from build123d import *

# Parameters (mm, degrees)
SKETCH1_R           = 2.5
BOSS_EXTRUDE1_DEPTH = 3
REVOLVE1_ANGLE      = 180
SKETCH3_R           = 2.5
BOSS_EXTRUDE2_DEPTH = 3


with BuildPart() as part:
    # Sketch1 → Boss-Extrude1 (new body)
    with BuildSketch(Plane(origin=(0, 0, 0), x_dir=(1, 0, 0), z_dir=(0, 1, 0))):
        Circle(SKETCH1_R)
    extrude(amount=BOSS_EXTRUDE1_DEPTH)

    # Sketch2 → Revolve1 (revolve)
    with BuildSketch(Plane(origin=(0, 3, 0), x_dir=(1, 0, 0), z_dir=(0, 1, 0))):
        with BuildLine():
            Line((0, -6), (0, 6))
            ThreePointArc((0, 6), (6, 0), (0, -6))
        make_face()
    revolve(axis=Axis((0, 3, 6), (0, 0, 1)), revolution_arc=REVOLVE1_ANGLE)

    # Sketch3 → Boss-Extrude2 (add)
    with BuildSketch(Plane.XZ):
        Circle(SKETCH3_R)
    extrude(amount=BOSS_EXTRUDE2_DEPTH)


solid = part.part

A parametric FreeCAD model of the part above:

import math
import FreeCAD as App
import Part
import Sketcher

V = App.Vector
Q = App.Units.Quantity

doc = App.newDocument("Part")
body = doc.addObject("PartDesign::Body", "Body")

sketch1 = body.newObject("Sketcher::SketchObject", "Sketch")
sketch1.AttachmentSupport = (doc.getObject("XZ_Plane"), [""])
sketch1.MapMode = "FlatFace"
sketch1.addGeometry(Part.Circle(V(0, 0, 0), V(0, 0, 1), 2.5), False)
sketch1.addConstraint([
    Sketcher.Constraint("Coincident", 0, 3, -1, 1),
    Sketcher.Constraint("Diameter", 0, Q("5 mm")),
])
pad1 = body.newObject("PartDesign::Pad", "Pad")
pad1.Profile = sketch1
pad1.Length = 3
pad1.Reversed = True

sketch2 = body.newObject("Sketcher::SketchObject", "Sketch001")
sketch2.AttachmentSupport = (doc.getObject("XZ_Plane"), [""])
sketch2.MapMode = "FlatFace"
sketch2.AttachmentOffset = App.Placement(V(0, 0, -3), App.Rotation())
sketch2.addGeometry([
    Part.LineSegment(V(0, -6, 0), V(0, 6, 0)),
    Part.ArcOfCircle(Part.Circle(V(0, 0, 0), V(0, 0, 1), 6), math.radians(-90), math.radians(90)),
], False)
sketch2.addConstraint([
    Sketcher.Constraint("Coincident", 0, 1, 1, 1),
    Sketcher.Constraint("Coincident", 1, 2, 0, 2),
    Sketcher.Constraint("Vertical", 0),
    Sketcher.Constraint("Coincident", 1, 3, -1, 1),
    Sketcher.Constraint("PointOnObject", 0, 1, -2),
    Sketcher.Constraint("Radius", 1, Q("6 mm")),
])
revolution = body.newObject("PartDesign::Revolution", "Revolution")
revolution.Profile = sketch2
revolution.ReferenceAxis = (sketch2, ["V_Axis"])
revolution.Angle = 180

sketch3 = body.newObject("Sketcher::SketchObject", "Sketch002")
sketch3.AttachmentSupport = (doc.getObject("XZ_Plane"), [""])
sketch3.MapMode = "FlatFace"
sketch3.addGeometry(Part.Circle(V(0, 0, 0), V(0, 0, 1), 2.5), False)
sketch3.addConstraint([
    Sketcher.Constraint("Coincident", 0, 3, -1, 1),
    Sketcher.Constraint("Diameter", 0, Q("5 mm")),
])
pad2 = body.newObject("PartDesign::Pad", "Pad001")
pad2.Profile = sketch3
pad2.Length = 3

doc.recompute()
